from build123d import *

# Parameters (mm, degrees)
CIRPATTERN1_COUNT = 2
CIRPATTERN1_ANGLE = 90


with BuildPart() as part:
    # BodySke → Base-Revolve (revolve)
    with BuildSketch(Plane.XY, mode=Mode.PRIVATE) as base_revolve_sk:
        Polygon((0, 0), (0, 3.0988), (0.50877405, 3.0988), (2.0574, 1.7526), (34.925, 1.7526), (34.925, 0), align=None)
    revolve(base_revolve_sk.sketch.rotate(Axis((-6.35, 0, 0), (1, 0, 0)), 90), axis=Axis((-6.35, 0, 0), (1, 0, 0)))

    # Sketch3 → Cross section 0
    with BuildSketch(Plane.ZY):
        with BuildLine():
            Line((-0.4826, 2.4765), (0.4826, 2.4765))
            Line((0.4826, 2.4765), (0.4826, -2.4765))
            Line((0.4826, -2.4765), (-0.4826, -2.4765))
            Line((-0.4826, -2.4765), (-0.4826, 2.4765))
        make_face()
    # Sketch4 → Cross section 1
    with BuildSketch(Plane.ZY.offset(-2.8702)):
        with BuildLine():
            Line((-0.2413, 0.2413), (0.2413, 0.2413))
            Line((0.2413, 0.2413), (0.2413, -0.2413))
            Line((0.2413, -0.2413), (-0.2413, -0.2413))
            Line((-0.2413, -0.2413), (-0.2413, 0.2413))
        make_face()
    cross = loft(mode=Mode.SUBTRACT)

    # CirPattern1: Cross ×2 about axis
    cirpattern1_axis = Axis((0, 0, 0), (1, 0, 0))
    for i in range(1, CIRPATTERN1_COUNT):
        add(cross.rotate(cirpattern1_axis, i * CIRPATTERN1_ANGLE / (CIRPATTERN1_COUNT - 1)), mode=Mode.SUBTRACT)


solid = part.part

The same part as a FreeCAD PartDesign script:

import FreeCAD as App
import Part
import Sketcher
from FreeCAD import Vector
Q = App.Units.Quantity

doc = App.newDocument("Part")
body = doc.addObject("PartDesign::Body", "Body")

# Sketch on XY plane
sketch1 = body.newObject("Sketcher::SketchObject", "Sketch")
sketch1.AttachmentSupport = (doc.getObject("XY_Plane"), [""])
sketch1.MapMode = "FlatFace"
sketch1.addGeometry(Part.LineSegment(Vector(0, 3.1, 0), Vector(0, 0, 0)), False)
sketch1.addGeometry(Part.LineSegment(Vector(0, 0, 0), Vector(34.9, 0, 0)), False)
sketch1.addGeometry(Part.LineSegment(Vector(34.9, 0, 0), Vector(34.9, 1.8, 0)), False)
sketch1.addGeometry(Part.LineSegment(Vector(34.9, 1.8, 0), Vector(2.1, 1.8, 0)), False)
sketch1.addGeometry(Part.LineSegment(Vector(2.1, 1.8, 0), Vector(0.5, 3.1, 0)), False)
sketch1.addGeometry(Part.LineSegment(Vector(0.5, 3.1, 0), Vector(0, 3.1, 0)), False)
sketch1.addConstraint(Sketcher.Constraint("Coincident", 0, 2, 1, 1))
sketch1.addConstraint(Sketcher.Constraint("Coincident", 1, 2, 2, 1))
sketch1.addConstraint(Sketcher.Constraint("Coincident", 2, 2, 3, 1))
sketch1.addConstraint(Sketcher.Constraint("Coincident", 3, 2, 4, 1))
sketch1.addConstraint(Sketcher.Constraint("Coincident", 4, 2, 5, 1))
sketch1.addConstraint(Sketcher.Constraint("Coincident", 5, 2, 0, 1))
sketch1.addConstraint(Sketcher.Constraint("Vertical", 0))
sketch1.addConstraint(Sketcher.Constraint("Horizontal", 1))
sketch1.addConstraint(Sketcher.Constraint("Vertical", 2))
sketch1.addConstraint(Sketcher.Constraint("Horizontal", 3))
sketch1.addConstraint(Sketcher.Constraint("Horizontal", 5))
sketch1.addConstraint(Sketcher.Constraint("Coincident", 0, 2, -1, 1))
sketch1.addConstraint(Sketcher.Constraint("Angle", 4, Q("139 deg")))
sketch1.addConstraint(Sketcher.Constraint("DistanceX", 1, 1, 1, 2, Q("1.375 in")))
sketch1.addConstraint(Sketcher.Constraint("DistanceX", 3, 2, 3, 1, Q("1.294 in")))
sketch1.addConstraint(Sketcher.Constraint("DistanceY", 0, 2, 0, 1, Q("0.122 in")))
sketch1.addConstraint(Sketcher.Constraint("DistanceY", 2, 1, 2, 2, Q("0.069 in")))
revolution = body.newObject("PartDesign::Revolution", "Revolution")
revolution.Profile = sketch1
revolution.ReferenceAxis = (sketch1, ["H_Axis"])
revolution.Angle = 360

# Sketch on YZ plane
sketch2 = body.newObject("Sketcher::SketchObject", "Sketch001")
sketch2.AttachmentSupport = (doc.getObject("YZ_Plane"), [""])
sketch2.MapMode = "FlatFace"
sketch2.addGeometry(Part.LineSegment(Vector(2.5, 0.5, 0), Vector(2.5, -0.5, 0)), False)
sketch2.addGeometry(Part.LineSegment(Vector(2.5, -0.5, 0), Vector(-2.5, -0.5, 0)), False)
sketch2.addGeometry(Part.LineSegment(Vector(-2.5, -0.5, 0), Vector(-2.5, 0.5, 0)), False)
sketch2.addGeometry(Part.LineSegment(Vector(-2.5, 0.5, 0), Vector(2.5, 0.5, 0)), False)
sketch2.addConstraint(Sketcher.Constraint("Coincident", 0, 2, 1, 1))
sketch2.addConstraint(Sketcher.Constraint("Coincident", 1, 2, 2, 1))
sketch2.addConstraint(Sketcher.Constraint("Coincident", 2, 2, 3, 1))
sketch2.addConstraint(Sketcher.Constraint("Coincident", 3, 2, 0, 1))
sketch2.addConstraint(Sketcher.Constraint("Vertical", 0))
sketch2.addConstraint(Sketcher.Constraint("Horizontal", 1))
sketch2.addConstraint(Sketcher.Constraint("Vertical", 2))
sketch2.addConstraint(Sketcher.Constraint("Horizontal", 3))
sketch2.addConstraint(Sketcher.Constraint("Symmetric", 0, 2, 2, 2, -1, 1))
sketch2.addConstraint(Sketcher.Constraint("DistanceX", 1, 2, 1, 1, Q("0.195 in")))
sketch2.addConstraint(Sketcher.Constraint("DistanceY", 0, 2, 0, 1, Q("0.038 in")))

# Sketch on YZ plane
sketch3 = body.newObject("Sketcher::SketchObject", "Sketch002")
sketch3.AttachmentSupport = (doc.getObject("YZ_Plane"), [""])
sketch3.MapMode = "FlatFace"
sketch3.AttachmentOffset = App.Placement(Vector(0, 0, 0.113 * 25.4), App.Rotation())
sketch3.addGeometry(Part.LineSegment(Vector(0.24, 0.24, 0), Vector(0.24, -0.24, 0)), False)
sketch3.addGeometry(Part.LineSegment(Vector(0.24, -0.24, 0), Vector(-0.24, -0.24, 0)), False)
sketch3.addGeometry(Part.LineSegment(Vector(-0.24, -0.24, 0), Vector(-0.24, 0.24, 0)), False)
sketch3.addGeometry(Part.LineSegment(Vector(-0.24, 0.24, 0), Vector(0.24, 0.24, 0)), False)
sketch3.addConstraint(Sketcher.Constraint("Coincident", 0, 2, 1, 1))
sketch3.addConstraint(Sketcher.Constraint("Coincident", 1, 2, 2, 1))
sketch3.addConstraint(Sketcher.Constraint("Coincident", 2, 2, 3, 1))
sketch3.addConstraint(Sketcher.Constraint("Coincident", 3, 2, 0, 1))
sketch3.addConstraint(Sketcher.Constraint("Vertical", 0))
sketch3.addConstraint(Sketcher.Constraint("Horizontal", 1))
sketch3.addConstraint(Sketcher.Constraint("Vertical", 2))
sketch3.addConstraint(Sketcher.Constraint("Horizontal", 3))
sketch3.addConstraint(Sketcher.Constraint("Symmetric", 0, 2, 2, 2, -1, 1))
sketch3.addConstraint(Sketcher.Constraint("Equal", 3, 0))
sketch3.addConstraint(Sketcher.Constraint("DistanceX", 1, 2, 1, 1, Q("0.019 in")))

subtractiveloft = body.newObject("PartDesign::SubtractiveLoft", "SubtractiveLoft")
subtractiveloft.Profile = sketch2
subtractiveloft.Sections = [sketch3]
doc.recompute()

polarpattern = body.newObject("PartDesign::PolarPattern", "PolarPattern")
polarpattern.Originals = [subtractiveloft]
polarpattern.Axis = (doc.getObject("X_Axis"), [""])
polarpattern.Angle = 90
polarpattern.Occurrences = 2
body.Tip = polarpattern

doc.recompute()
